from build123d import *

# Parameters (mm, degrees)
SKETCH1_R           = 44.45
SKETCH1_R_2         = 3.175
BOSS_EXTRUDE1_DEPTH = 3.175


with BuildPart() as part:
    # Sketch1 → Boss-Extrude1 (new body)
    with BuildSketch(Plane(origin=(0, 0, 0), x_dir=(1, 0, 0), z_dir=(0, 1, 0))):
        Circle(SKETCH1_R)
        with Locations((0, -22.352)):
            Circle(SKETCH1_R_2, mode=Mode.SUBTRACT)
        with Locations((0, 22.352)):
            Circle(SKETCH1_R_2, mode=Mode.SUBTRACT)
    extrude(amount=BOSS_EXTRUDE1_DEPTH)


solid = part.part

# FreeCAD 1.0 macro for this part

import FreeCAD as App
import Part
import Sketcher
Q = App.Units.Quantity

doc = App.newDocument("Part")
params = doc.addObject("Spreadsheet::Sheet", "Params")
for row, (alias, value) in enumerate([
    ("sketch1_diameter", "3.5 in"),
    ("sketch1_diameter2", "0.25 in"),
    ("pad1_length", "0.125 in"),
], start=1):
    params.set(f"A{row}", alias)
    params.set(f"B{row}", "=" + value)
    params.setAlias(f"B{row}", alias)

body = doc.addObject("PartDesign::Body", "Body")

# Sketch on XZ plane
sketch1 = doc.addObject("Sketcher::SketchObject", "Sketch")
body.addObject(sketch1)
sketch1.AttachmentSupport = (doc.XZ_Plane, [""])
sketch1.MapMode = "FlatFace"
sketch1.addGeometry([
    Part.Circle(App.Vector(0, 0, 0), App.Vector(0, 0, 1), 44.5),
    Part.Circle(App.Vector(0, 22.4, 0), App.Vector(0, 0, 1), 3.2),
    Part.Circle(App.Vector(0, -22.4, 0), App.Vector(0, 0, 1), 3.2),
], False)
sketch1.addConstraint([
    Sketcher.Constraint("Coincident", 0, 3, -1, 1),
    Sketcher.Constraint("Equal", 1, 2),
    Sketcher.Constraint("Symmetric", 1, 3, 2, 3, -1, 1),
    Sketcher.Constraint("PointOnObject", 1, 3, -2),
    Sketcher.Constraint("Diameter", 0, Q("3.5 in")),
    Sketcher.Constraint("Diameter", 1, Q("0.25 in")),
    Sketcher.Constraint("DistanceY", -1, 1, 1, 3, Q("0.88 in")),
])
sketch1.setExpression("Constraints[4]", "Params.sketch1_diameter")
sketch1.setExpression("Constraints[5]", "Params.sketch1_diameter2")
pad1 = doc.addObject("PartDesign::Pad", "Pad")
body.addObject(pad1)
pad1.Profile = sketch1
pad1.setExpression("Length", "Params.pad1_length")
pad1.Reversed = True

doc.recompute()
